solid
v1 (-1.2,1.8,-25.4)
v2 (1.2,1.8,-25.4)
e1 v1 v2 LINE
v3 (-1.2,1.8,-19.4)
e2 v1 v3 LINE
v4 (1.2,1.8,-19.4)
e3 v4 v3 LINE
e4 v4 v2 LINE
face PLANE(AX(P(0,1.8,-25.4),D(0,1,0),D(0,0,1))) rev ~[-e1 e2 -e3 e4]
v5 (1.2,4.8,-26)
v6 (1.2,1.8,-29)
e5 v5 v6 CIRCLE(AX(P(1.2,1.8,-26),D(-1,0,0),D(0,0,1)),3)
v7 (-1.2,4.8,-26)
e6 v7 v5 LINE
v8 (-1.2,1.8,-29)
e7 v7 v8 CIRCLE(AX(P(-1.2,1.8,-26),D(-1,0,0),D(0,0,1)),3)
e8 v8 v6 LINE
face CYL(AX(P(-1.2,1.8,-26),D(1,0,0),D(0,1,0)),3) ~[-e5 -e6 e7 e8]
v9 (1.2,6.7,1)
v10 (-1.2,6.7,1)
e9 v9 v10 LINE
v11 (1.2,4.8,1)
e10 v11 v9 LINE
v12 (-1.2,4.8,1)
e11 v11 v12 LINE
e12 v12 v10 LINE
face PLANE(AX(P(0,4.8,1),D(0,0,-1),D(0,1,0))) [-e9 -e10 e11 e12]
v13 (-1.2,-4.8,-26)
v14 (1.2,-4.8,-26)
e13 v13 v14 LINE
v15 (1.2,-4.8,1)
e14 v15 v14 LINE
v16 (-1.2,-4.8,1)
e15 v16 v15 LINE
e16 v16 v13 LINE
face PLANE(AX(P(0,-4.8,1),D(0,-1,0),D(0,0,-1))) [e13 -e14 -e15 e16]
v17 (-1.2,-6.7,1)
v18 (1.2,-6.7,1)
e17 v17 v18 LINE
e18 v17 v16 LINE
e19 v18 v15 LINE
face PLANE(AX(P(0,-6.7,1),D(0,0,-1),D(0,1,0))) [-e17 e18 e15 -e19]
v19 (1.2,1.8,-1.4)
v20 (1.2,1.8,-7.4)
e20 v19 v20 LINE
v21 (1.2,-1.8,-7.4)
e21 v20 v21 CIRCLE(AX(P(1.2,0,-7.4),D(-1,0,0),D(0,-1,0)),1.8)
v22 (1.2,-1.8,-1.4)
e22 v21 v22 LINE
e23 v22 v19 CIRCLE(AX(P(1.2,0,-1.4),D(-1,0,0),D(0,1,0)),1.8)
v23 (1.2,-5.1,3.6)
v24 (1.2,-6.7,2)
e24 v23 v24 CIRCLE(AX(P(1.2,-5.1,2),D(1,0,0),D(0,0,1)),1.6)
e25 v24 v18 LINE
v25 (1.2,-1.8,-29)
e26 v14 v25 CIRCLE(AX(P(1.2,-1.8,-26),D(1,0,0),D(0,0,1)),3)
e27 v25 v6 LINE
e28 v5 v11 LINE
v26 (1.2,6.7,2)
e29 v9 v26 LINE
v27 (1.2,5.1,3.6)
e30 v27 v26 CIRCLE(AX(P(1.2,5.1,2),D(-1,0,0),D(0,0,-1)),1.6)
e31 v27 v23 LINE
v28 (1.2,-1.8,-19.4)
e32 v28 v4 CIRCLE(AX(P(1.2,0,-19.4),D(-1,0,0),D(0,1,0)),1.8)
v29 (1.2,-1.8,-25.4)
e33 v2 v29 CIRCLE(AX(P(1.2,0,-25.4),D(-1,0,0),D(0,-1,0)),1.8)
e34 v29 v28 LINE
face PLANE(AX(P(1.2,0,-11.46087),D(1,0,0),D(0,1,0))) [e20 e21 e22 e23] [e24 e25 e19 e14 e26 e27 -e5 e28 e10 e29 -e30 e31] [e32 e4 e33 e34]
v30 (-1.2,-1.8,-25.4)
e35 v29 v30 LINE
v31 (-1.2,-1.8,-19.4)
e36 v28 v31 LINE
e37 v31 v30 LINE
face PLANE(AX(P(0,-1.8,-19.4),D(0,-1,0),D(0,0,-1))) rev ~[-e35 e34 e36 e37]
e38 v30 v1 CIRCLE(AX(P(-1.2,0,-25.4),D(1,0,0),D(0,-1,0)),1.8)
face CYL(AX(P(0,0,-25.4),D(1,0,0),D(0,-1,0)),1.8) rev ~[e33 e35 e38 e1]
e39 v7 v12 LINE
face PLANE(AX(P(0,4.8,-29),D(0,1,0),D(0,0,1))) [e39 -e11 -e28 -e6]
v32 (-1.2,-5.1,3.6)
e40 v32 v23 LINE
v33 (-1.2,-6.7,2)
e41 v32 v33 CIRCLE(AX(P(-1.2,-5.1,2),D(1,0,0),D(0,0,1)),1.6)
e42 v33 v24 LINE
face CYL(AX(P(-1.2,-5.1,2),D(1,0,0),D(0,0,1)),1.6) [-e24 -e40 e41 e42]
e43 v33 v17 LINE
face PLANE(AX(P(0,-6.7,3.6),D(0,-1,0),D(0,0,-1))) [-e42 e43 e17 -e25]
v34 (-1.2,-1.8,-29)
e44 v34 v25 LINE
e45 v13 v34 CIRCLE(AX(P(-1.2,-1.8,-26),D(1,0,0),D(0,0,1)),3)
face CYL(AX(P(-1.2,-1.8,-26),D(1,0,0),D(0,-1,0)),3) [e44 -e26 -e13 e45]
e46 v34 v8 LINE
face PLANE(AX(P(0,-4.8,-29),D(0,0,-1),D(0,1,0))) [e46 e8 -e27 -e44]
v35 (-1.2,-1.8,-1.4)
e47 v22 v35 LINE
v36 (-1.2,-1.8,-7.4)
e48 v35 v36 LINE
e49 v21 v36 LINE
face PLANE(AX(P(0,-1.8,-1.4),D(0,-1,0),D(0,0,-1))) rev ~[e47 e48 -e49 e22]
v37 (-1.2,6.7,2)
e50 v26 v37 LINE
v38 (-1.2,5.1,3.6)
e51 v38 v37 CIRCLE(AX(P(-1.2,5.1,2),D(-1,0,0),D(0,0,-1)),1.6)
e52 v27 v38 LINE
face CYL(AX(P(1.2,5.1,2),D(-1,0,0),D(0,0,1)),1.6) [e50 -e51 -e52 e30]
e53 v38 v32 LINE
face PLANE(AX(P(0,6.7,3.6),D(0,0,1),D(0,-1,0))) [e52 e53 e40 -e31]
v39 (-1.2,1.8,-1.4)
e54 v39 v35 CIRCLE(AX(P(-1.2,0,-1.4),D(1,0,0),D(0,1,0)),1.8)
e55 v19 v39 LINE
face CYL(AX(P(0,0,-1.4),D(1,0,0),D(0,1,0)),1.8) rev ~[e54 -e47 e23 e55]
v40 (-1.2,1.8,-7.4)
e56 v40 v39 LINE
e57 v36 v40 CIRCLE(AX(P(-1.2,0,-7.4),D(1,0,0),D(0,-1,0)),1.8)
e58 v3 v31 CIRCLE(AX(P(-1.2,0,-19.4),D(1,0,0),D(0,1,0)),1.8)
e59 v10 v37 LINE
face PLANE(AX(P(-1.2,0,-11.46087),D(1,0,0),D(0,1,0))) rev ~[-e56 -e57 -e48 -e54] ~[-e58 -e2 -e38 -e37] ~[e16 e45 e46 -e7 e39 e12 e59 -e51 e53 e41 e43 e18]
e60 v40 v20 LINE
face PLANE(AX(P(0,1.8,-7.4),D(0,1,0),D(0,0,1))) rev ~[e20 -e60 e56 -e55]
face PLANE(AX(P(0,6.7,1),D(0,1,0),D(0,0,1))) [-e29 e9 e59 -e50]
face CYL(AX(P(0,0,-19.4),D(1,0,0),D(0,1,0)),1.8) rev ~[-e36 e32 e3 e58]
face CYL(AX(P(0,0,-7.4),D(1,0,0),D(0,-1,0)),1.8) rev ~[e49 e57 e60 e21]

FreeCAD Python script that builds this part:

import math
import FreeCAD as App
import Part
import Sketcher

V = App.Vector


def edges_at(feature, points):
    """Names of the edges that pass closest to the given points."""
    edges = feature.Shape.Edges
    near = lambda p: min(range(len(edges)), key=lambda i: edges[i].distToShape(Part.Vertex(*p))[0])
    return sorted({f"Edge{near(p) + 1}" for p in points})

doc = App.newDocument("Part")
params = doc.addObject("Spreadsheet::Sheet", "Params")
for row, (alias, value) in enumerate([
    ("sketch1_height", "30 mm"),
    ("sketch1_width", "13.4 mm"),
    ("sketch1_width2", "1.9 mm"),
    ("sketch1_height2", "2.6 mm"),
    ("pad1_length", "2.4 mm"),
    ("sketch2_radius", "1.8 mm"),
    ("sketch2_height", "6 mm"),
    ("fillet_radius", "1.6 mm"),
    ("fillet2_radius", "3 mm"),
], start=1):
    params.set(f"A{row}", alias)
    params.set(f"B{row}", "=" + value)
    params.setAlias(f"B{row}", alias)

body = doc.addObject("PartDesign::Body", "Body")

sketch1 = body.newObject("Sketcher::SketchObject", "Sketch")
sketch1.AttachmentSupport = (doc.getObject("YZ_Plane"), [""])
sketch1.MapMode = "FlatFace"
sketch1.addGeometry(Part.LineSegment(V(6.7, 3.6, 0), V(-6.7, 3.6, 0)), False)
sketch1.addGeometry(Part.LineSegment(V(-6.7, 3.6, 0), V(-6.7, 1, 0)), False)
sketch1.addGeometry(Part.LineSegment(V(-6.7, 1, 0), V(-4.8, 1, 0)), False)
sketch1.addGeometry(Part.LineSegment(V(-4.8, 1, 0), V(-4.8, -29, 0)), False)
sketch1.addGeometry(Part.LineSegment(V(-4.8, -29, 0), V(4.8, -29, 0)), False)
sketch1.addGeometry(Part.LineSegment(V(4.8, -29, 0), V(4.8, 1, 0)), False)
sketch1.addGeometry(Part.LineSegment(V(4.8, 1, 0), V(6.7, 1, 0)), False)
sketch1.addGeometry(Part.LineSegment(V(6.7, 1, 0), V(6.7, 3.6, 0)), False)
sketch1.addConstraint(Sketcher.Constraint("Coincident", 0, 2, 1, 1))
sketch1.addConstraint(Sketcher.Constraint("Coincident", 1, 2, 2, 1))
sketch1.addConstraint(Sketcher.Constraint("Coincident", 2, 2, 3, 1))
sketch1.addConstraint(Sketcher.Constraint("Coincident", 3, 2, 4, 1))
sketch1.addConstraint(Sketcher.Constraint("Coincident", 4, 2, 5, 1))
sketch1.addConstraint(Sketcher.Constraint("Coincident", 5, 2, 6, 1))
sketch1.addConstraint(Sketcher.Constraint("Coincident", 6, 2, 7, 1))
sketch1.addConstraint(Sketcher.Constraint("Coincident", 7, 2, 0, 1))
sketch1.addConstraint(Sketcher.Constraint("Horizontal", 0))
sketch1.addConstraint(Sketcher.Constraint("Vertical", 1))
sketch1.addConstraint(Sketcher.Constraint("Horizontal", 2))
sketch1.addConstraint(Sketcher.Constraint("Vertical", 3))
sketch1.addConstraint(Sketcher.Constraint("Horizontal", 4))
sketch1.addConstraint(Sketcher.Constraint("Vertical", 5))
sketch1.addConstraint(Sketcher.Constraint("Horizontal", 6))
sketch1.addConstraint(Sketcher.Constraint("Vertical", 7))
sketch1.addConstraint(Sketcher.Constraint("Symmetric", 2, 2, 5, 2, -2))
sketch1.addConstraint(Sketcher.Constraint("Equal", 2, 6))
sketch1.addConstraint(Sketcher.Constraint("DistanceY", 3, 2, 3, 1, 30.0))
sketch1.addConstraint(Sketcher.Constraint("DistanceX", 0, 2, 0, 1, 13.4))
sketch1.addConstraint(Sketcher.Constraint("DistanceX", 2, 1, 2, 2, 1.9))
sketch1.addConstraint(Sketcher.Constraint("DistanceY", 1, 2, 1, 1, 2.6))
sketch1.addConstraint(Sketcher.Constraint("DistanceY", -1, 1, 1, 2, 1.0))
sketch1.setExpression("Constraints[18]", "Params.sketch1_height")
sketch1.setExpression("Constraints[19]", "Params.sketch1_width")
sketch1.setExpression("Constraints[20]", "Params.sketch1_width2")
sketch1.setExpression("Constraints[21]", "Params.sketch1_height2")
pad1 = body.newObject("PartDesign::Pad", "Pad")
pad1.Profile = sketch1
pad1.setExpression("Length", "Params.pad1_length")
pad1.Midplane = True

sketch2 = body.newObject("Sketcher::SketchObject", "Sketch001")
sketch2.AttachmentSupport = (doc.getObject("YZ_Plane"), [""])
sketch2.MapMode = "FlatFace"
sketch2.addGeometry(Part.LineSegment(V(1.8, -7.4, 0), V(1.8, -1.4, 0)), False)
sketch2.addGeometry(Part.ArcOfCircle(Part.Circle(V(0, -1.4, 0), V(0, 0, 1), 1.8), math.radians(0), math.radians(180)), False)
sketch2.addGeometry(Part.LineSegment(V(-1.8, -1.4, 0), V(-1.8, -7.4, 0)), False)
sketch2.addGeometry(Part.ArcOfCircle(Part.Circle(V(0, -7.4, 0), V(0, 0, 1), 1.8), math.radians(180), math.radians(360)), False)
sketch2.addGeometry(Part.LineSegment(V(1.8, -25.4, 0), V(1.8, -19.4, 0)), False)
sketch2.addGeometry(Part.ArcOfCircle(Part.Circle(V(0, -19.4, 0), V(0, 0, 1), 1.8), math.radians(0), math.radians(180)), False)
sketch2.addGeometry(Part.LineSegment(V(-1.8, -19.4, 0), V(-1.8, -25.4, 0)), False)
sketch2.addGeometry(Part.ArcOfCircle(Part.Circle(V(0, -25.4, 0), V(0, 0, 1), 1.8), math.radians(180), math.radians(360)), False)
sketch2.addConstraint(Sketcher.Constraint("Tangent", 0, 2, 1, 1))
sketch2.addConstraint(Sketcher.Constraint("Tangent", 1, 2, 2, 1))
sketch2.addConstraint(Sketcher.Constraint("Tangent", 2, 2, 3, 1))
sketch2.addConstraint(Sketcher.Constraint("Tangent", 3, 2, 0, 1))
sketch2.addConstraint(Sketcher.Constraint("Tangent", 4, 2, 5, 1))
sketch2.addConstraint(Sketcher.Constraint("Tangent", 5, 2, 6, 1))
sketch2.addConstraint(Sketcher.Constraint("Tangent", 6, 2, 7, 1))
sketch2.addConstraint(Sketcher.Constraint("Tangent", 7, 2, 4, 1))
sketch2.addConstraint(Sketcher.Constraint("Vertical", 0))
sketch2.addConstraint(Sketcher.Constraint("Vertical", 2))
sketch2.addConstraint(Sketcher.Constraint("Vertical", 4))
sketch2.addConstraint(Sketcher.Constraint("Vertical", 6))
sketch2.addConstraint(Sketcher.Constraint("Equal", 3, 5))
sketch2.addConstraint(Sketcher.Constraint("PointOnObject", 1, 3, -2))
sketch2.addConstraint(Sketcher.Constraint("PointOnObject", 5, 3, -2))
sketch2.addConstraint(Sketcher.Constraint("Equal", 2, 4))
sketch2.addConstraint(Sketcher.Constraint("Radius", 1, 1.8))
sketch2.addConstraint(Sketcher.Constraint("DistanceY", 0, 1, 0, 2, 6.0))
sketch2.addConstraint(Sketcher.Constraint("DistanceY", 5, 3, 3, 3, 12.0))
sketch2.addConstraint(Sketcher.Constraint("DistanceY", 1, 3, -1, 1, 1.4))
sketch2.setExpression("Constraints[16]", "Params.sketch2_radius")
sketch2.setExpression("Constraints[17]", "Params.sketch2_height")
pocket1 = body.newObject("PartDesign::Pocket", "Pocket")
pocket1.Profile = sketch2
pocket1.Type = "ThroughAll"
pocket1.Midplane = True
doc.recompute()

fillet = body.newObject("PartDesign::Fillet", "Fillet")
fillet.Base = (pocket1, edges_at(pocket1, [(0, 6.7, 3.6), (0, -6.7, 3.6)]))
fillet.setExpression("Radius", "Params.fillet_radius")
doc.recompute()

fillet2 = body.newObject("PartDesign::Fillet", "Fillet001")
fillet2.Base = (fillet, edges_at(fillet, [(0, 4.8, -29), (0, -4.8, -29)]))
fillet2.setExpression("Radius", "Params.fillet2_radius")

doc.recompute()
